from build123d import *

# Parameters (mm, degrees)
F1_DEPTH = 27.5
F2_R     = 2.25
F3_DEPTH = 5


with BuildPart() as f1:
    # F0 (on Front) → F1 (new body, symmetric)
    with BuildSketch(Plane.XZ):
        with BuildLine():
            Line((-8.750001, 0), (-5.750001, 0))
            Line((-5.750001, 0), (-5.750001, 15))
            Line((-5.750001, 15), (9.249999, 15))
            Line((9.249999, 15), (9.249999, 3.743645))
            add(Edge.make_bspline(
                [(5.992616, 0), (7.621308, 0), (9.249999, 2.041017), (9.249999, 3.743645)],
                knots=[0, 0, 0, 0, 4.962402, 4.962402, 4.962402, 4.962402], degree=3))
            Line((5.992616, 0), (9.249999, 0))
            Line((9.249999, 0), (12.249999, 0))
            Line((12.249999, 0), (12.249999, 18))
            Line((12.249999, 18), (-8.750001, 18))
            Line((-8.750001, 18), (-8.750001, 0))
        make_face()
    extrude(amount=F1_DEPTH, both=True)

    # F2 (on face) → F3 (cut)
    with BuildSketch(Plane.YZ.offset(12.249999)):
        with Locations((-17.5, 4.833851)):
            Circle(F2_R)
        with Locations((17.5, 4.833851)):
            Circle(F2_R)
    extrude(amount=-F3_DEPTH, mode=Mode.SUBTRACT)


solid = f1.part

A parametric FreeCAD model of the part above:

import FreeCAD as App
import Part
import Sketcher

doc = App.newDocument("Part")
params = doc.addObject("Spreadsheet::Sheet", "Params")
for row, (alias, value) in enumerate([
    ("sketch1_width", "3 mm"),
    ("sketch1_width2", "15 mm"),
    ("sketch1_width3", "21 mm"),
    ("sketch1_height", "18 mm"),
    ("pad1_length", "55 mm"),
    ("sketch2_diameter", "4.5 mm"),
    ("pocket1_length", "5 mm"),
], start=1):
    params.set(f"A{row}", alias)
    params.set(f"B{row}", "=" + value)
    params.setAlias(f"B{row}", alias)

body = doc.addObject("PartDesign::Body", "Body")

sketch1 = body.newObject("Sketcher::SketchObject", "Sketch")
sketch1.AttachmentSupport = (doc.getObject("XZ_Plane"), [""])
sketch1.MapMode = "FlatFace"
sketch1.addGeometry([
    Part.LineSegment(App.Vector(-8.750001, 0, 0), App.Vector(-5.750001, 0, 0)),
    Part.LineSegment(App.Vector(-5.750001, 0, 0), App.Vector(-5.750001, 15, 0)),
    Part.LineSegment(App.Vector(-5.750001, 15, 0), App.Vector(9.249999, 15, 0)),
    Part.LineSegment(App.Vector(9.249999, 15, 0), App.Vector(9.249999, 3.743645, 0)),
    Part.BSplineCurve([App.Vector(5.992616, 0, 0), App.Vector(7.621308, 0, 0), App.Vector(9.249999, 2.041017, 0), App.Vector(9.249999, 3.743645, 0)], [4, 4], [0, 4.962402], False, 3, [1, 1, 1, 1], False),
    Part.LineSegment(App.Vector(5.992616, 0, 0), App.Vector(12.249999, 0, 0)),
    Part.LineSegment(App.Vector(12.249999, 0, 0), App.Vector(12.249999, 18, 0)),
    Part.LineSegment(App.Vector(12.249999, 18, 0), App.Vector(-8.750001, 18, 0)),
    Part.LineSegment(App.Vector(-8.750001, 18, 0), App.Vector(-8.750001, 0, 0)),
], False)
sketch1.addConstraint([
    Sketcher.Constraint("Block", 4),
    Sketcher.Constraint("Coincident", 0, 2, 1, 1),
    Sketcher.Constraint("Coincident", 1, 2, 2, 1),
    Sketcher.Constraint("Coincident", 2, 2, 3, 1),
    Sketcher.Constraint("Coincident", 3, 2, 4, 2),
    Sketcher.Constraint("Coincident", 4, 1, 5, 1),
    Sketcher.Constraint("Coincident", 5, 2, 6, 1),
    Sketcher.Constraint("Coincident", 6, 2, 7, 1),
    Sketcher.Constraint("Coincident", 7, 2, 8, 1),
    Sketcher.Constraint("Coincident", 8, 2, 0, 1),
    Sketcher.Constraint("Horizontal", 0),
    Sketcher.Constraint("Vertical", 1),
    Sketcher.Constraint("Horizontal", 2),
    Sketcher.Constraint("Vertical", 3),
    Sketcher.Constraint("Horizontal", 5),
    Sketcher.Constraint("Vertical", 6),
    Sketcher.Constraint("Horizontal", 7),
    Sketcher.Constraint("Vertical", 8),
    Sketcher.Constraint("PointOnObject", 0, 2, -1),
    Sketcher.Constraint("Equal", 2, 1),
    Sketcher.Constraint("DistanceX", 0, 1, 0, 2, 3.0),
    Sketcher.Constraint("DistanceX", 2, 1, 2, 2, 15.0),
    Sketcher.Constraint("DistanceX", 7, 2, 7, 1, 21.0),
    Sketcher.Constraint("DistanceY", 6, 1, 6, 2, 18.0),
])
sketch1.setExpression("Constraints[20]", "Params.sketch1_width")
sketch1.setExpression("Constraints[21]", "Params.sketch1_width2")
sketch1.setExpression("Constraints[22]", "Params.sketch1_width3")
sketch1.setExpression("Constraints[23]", "Params.sketch1_height")
pad1 = body.newObject("PartDesign::Pad", "Pad")
pad1.Profile = sketch1
pad1.setExpression("Length", "Params.pad1_length")
pad1.Midplane = True

sketch2 = body.newObject("Sketcher::SketchObject", "Sketch001")
sketch2.AttachmentSupport = (doc.getObject("YZ_Plane"), [""])
sketch2.MapMode = "FlatFace"
sketch2.AttachmentOffset = App.Placement(App.Vector(0, 0, 12.249999), App.Rotation())
sketch2.addGeometry([
    Part.Circle(App.Vector(-17.5, 4.8, 0), App.Vector(0, 0, 1), 2.2),
    Part.Circle(App.Vector(17.5, 4.8, 0), App.Vector(0, 0, 1), 2.2),
], False)
sketch2.addConstraint([
    Sketcher.Constraint("Equal", 0, 1),
    Sketcher.Constraint("Symmetric", 0, 3, 1, 3, -2),
    Sketcher.Constraint("Diameter", 0, 4.5),
    Sketcher.Constraint("DistanceX", 0, 3, 1, 3, 35.0),
    Sketcher.Constraint("DistanceY", -1, 1, 0, 3, 4.833851),
])
sketch2.setExpression("Constraints[2]", "Params.sketch2_diameter")
pocket1 = body.newObject("PartDesign::Pocket", "Pocket")
pocket1.Profile = sketch2
pocket1.setExpression("Length", "Params.pocket1_length")

doc.recompute()
